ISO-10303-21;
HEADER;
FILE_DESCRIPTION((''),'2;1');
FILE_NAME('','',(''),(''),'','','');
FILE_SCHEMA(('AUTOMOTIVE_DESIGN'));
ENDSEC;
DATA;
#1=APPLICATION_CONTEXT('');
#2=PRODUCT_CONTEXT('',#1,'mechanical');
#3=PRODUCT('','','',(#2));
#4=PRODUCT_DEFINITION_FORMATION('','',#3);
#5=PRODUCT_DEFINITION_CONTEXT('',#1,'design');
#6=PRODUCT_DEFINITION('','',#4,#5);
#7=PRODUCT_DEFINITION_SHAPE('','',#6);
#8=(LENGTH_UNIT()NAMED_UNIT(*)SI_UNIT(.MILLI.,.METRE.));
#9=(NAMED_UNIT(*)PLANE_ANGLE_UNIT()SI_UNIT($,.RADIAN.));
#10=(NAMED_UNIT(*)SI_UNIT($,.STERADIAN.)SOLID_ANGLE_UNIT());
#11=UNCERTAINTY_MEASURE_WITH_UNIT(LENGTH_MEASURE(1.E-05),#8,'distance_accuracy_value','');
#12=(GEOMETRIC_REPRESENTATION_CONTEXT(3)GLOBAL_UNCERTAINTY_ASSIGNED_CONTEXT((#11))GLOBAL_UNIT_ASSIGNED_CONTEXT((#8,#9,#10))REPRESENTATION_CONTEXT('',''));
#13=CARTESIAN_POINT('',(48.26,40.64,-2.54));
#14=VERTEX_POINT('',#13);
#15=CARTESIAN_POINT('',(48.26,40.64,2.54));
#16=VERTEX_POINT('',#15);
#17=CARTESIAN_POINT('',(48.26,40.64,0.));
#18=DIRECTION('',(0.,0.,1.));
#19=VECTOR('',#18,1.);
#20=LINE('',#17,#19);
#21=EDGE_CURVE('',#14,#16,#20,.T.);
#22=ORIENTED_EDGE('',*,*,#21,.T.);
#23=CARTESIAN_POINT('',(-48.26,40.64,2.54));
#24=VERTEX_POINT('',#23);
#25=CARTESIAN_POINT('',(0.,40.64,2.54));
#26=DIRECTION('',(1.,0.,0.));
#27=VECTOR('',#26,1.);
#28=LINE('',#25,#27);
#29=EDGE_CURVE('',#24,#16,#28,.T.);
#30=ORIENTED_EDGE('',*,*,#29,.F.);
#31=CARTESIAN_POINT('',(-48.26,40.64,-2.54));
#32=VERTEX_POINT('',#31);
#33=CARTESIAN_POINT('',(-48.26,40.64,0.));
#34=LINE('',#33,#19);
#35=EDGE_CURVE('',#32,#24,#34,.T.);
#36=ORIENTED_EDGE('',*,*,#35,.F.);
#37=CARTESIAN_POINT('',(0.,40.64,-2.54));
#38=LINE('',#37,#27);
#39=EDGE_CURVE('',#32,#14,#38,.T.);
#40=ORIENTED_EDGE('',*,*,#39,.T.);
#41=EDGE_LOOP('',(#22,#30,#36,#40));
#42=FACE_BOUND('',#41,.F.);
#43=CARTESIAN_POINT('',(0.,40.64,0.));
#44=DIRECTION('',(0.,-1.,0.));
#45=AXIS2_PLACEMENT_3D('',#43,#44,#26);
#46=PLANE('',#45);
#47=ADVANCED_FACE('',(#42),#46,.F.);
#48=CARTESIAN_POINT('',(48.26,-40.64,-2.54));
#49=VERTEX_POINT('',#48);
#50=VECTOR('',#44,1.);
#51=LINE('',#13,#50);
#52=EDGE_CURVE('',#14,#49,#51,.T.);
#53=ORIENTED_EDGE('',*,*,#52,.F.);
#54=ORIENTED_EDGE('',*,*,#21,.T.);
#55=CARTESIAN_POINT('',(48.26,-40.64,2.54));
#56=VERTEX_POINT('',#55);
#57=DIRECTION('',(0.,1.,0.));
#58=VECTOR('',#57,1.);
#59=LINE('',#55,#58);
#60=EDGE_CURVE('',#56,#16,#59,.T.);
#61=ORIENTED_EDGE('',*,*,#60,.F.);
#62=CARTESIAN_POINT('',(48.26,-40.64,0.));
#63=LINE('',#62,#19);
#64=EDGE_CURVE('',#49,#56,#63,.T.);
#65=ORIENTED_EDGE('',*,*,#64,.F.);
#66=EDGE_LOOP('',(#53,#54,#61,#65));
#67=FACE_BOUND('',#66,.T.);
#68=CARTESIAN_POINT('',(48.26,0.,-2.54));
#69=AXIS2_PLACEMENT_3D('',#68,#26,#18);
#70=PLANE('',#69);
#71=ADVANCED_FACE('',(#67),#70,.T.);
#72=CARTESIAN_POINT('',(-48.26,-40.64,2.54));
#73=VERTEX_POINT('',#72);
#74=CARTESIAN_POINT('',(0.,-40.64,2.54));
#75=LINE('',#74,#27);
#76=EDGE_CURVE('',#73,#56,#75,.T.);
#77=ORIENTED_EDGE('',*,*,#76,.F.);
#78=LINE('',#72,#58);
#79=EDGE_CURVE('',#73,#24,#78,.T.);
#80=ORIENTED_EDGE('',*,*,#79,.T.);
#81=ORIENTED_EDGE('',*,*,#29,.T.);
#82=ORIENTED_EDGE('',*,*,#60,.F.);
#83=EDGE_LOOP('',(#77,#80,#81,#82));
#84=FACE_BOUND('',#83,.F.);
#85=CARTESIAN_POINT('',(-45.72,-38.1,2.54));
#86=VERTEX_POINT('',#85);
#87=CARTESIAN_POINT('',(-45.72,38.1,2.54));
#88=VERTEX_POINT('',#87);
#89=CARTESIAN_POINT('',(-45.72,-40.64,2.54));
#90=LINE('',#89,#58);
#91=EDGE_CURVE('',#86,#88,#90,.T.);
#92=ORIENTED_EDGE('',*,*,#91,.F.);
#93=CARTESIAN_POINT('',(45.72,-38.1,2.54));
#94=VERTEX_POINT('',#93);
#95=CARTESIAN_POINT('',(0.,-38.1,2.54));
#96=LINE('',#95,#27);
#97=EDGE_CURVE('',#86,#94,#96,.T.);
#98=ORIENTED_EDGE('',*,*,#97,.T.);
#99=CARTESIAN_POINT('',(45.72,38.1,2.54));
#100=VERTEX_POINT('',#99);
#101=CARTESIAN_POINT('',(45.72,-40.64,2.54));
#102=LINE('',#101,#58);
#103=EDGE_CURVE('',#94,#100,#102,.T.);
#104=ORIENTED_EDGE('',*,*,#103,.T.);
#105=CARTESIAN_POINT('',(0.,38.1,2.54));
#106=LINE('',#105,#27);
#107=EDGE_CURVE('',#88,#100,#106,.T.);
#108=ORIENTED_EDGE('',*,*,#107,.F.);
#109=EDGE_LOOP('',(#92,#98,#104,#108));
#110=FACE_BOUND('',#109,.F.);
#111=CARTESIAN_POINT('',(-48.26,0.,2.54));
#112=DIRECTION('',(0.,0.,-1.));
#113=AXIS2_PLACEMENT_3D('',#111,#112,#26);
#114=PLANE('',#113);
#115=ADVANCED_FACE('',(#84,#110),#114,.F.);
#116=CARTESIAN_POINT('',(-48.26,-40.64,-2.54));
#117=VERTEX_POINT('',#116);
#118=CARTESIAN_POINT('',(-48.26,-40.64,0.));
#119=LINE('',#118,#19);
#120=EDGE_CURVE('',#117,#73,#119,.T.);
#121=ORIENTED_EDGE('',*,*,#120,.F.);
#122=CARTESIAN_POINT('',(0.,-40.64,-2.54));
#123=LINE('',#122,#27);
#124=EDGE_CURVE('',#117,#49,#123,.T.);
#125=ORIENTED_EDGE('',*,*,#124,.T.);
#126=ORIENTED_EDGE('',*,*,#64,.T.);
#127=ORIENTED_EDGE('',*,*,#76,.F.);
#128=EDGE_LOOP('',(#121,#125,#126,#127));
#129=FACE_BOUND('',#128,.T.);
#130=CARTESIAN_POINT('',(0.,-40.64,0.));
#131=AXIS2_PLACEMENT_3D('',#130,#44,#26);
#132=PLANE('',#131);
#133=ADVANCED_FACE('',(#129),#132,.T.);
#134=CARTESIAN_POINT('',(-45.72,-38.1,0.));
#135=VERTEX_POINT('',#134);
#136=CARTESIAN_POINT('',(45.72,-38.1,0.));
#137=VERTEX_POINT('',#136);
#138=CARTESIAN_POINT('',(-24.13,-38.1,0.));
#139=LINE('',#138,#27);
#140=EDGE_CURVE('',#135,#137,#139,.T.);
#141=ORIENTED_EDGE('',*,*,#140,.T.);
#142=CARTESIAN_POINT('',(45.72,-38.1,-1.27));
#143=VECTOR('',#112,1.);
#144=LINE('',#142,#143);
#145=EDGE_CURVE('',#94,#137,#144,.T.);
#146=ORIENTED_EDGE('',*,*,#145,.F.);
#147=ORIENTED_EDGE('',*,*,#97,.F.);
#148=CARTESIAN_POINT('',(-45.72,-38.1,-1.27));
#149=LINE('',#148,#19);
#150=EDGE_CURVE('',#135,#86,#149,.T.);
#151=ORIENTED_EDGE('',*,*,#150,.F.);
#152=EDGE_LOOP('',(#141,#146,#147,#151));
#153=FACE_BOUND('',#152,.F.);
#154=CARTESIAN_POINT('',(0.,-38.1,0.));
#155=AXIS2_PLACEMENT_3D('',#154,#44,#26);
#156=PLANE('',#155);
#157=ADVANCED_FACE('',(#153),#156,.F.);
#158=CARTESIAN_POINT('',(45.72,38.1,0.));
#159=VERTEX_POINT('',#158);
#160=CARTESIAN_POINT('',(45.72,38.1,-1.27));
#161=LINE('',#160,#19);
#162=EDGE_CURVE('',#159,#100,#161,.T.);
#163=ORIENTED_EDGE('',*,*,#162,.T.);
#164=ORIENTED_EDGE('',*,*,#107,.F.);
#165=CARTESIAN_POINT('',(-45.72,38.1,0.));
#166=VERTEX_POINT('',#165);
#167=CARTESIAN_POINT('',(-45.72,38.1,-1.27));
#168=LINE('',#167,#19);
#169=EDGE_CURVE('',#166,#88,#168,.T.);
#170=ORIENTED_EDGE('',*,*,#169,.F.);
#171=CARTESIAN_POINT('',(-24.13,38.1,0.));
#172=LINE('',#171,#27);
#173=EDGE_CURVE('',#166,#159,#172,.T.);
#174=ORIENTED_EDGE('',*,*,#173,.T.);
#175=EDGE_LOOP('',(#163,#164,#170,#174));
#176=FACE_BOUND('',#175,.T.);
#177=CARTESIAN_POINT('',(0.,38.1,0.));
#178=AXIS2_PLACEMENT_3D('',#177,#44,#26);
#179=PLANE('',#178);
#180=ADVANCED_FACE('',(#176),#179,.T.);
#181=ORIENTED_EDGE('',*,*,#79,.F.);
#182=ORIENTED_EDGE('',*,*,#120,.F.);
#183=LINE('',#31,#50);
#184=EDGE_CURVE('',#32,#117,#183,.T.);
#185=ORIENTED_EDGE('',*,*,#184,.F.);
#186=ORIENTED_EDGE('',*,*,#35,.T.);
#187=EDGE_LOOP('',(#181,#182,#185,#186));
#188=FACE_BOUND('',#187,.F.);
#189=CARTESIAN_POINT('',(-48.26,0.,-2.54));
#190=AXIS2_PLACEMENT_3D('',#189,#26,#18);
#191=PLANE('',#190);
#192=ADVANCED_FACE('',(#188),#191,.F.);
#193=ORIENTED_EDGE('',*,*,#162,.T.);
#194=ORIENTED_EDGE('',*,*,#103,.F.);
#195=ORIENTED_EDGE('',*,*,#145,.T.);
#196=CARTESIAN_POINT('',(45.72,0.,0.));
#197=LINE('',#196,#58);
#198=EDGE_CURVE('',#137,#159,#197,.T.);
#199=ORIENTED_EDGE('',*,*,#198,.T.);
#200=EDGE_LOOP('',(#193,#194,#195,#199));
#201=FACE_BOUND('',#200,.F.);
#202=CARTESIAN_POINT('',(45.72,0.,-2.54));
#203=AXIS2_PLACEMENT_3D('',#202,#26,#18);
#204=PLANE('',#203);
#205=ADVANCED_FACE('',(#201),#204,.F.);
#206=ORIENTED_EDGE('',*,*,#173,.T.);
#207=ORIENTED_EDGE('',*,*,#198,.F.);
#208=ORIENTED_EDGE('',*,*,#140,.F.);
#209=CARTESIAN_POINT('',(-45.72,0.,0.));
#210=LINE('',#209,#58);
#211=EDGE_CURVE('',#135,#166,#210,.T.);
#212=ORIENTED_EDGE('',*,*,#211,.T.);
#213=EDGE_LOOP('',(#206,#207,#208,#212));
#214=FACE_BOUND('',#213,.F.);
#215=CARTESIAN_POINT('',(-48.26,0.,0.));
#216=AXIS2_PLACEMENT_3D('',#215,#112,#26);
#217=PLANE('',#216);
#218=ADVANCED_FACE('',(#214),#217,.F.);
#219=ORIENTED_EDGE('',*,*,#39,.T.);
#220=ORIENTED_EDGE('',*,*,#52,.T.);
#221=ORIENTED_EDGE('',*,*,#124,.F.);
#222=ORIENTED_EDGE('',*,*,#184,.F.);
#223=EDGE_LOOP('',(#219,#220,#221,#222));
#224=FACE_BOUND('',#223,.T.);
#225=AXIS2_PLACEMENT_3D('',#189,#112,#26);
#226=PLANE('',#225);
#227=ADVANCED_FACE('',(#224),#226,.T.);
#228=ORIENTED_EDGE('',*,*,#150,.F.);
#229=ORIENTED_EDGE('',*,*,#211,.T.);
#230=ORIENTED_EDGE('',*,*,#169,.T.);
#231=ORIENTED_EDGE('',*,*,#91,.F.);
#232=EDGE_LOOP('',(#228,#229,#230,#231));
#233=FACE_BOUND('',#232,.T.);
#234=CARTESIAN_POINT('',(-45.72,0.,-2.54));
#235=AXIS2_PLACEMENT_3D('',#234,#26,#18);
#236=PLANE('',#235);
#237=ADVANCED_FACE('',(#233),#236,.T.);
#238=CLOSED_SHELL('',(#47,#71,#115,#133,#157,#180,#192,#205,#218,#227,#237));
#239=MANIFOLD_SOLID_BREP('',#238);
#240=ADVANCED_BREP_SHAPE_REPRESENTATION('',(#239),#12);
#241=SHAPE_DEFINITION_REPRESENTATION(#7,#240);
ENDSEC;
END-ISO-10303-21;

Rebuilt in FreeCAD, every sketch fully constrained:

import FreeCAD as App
import Part
import Sketcher
Q = App.Units.Quantity


def faces_at(feature, points):
    """Names of the faces that lie closest to the given points."""
    faces = feature.Shape.Faces
    near = lambda p: min(range(len(faces)), key=lambda i: faces[i].distToShape(Part.Vertex(*p))[0])
    return sorted({f"Face{near(p) + 1}" for p in points})


def add_polygon(sketch, points):
    """Adds a closed chain of lines whose ends are joined by coincident constraints."""
    first, n = sketch.GeometryCount, len(points)
    for a, b in zip(points, points[1:] + points[:1]):
        sketch.addGeometry(Part.LineSegment(App.Vector(*a, 0), App.Vector(*b, 0)), False)
    for i in range(n):
        sketch.addConstraint(Sketcher.Constraint("Coincident", first + i, 2, first + (i + 1) % n, 1))

doc = App.newDocument("Part")
body = doc.addObject("PartDesign::Body", "Body")

# Sketch on XZ plane
sketch1 = doc.addObject("Sketcher::SketchObject", "Sketch")
body.addObject(sketch1)
sketch1.AttachmentSupport = (doc.XZ_Plane, [""])
sketch1.MapMode = "FlatFace"
add_polygon(sketch1, [(-48, 3), (-48, -3), (48, -3), (48, 3)])  # lines 0-3
sketch1.addConstraint(Sketcher.Constraint("Vertical", 0))
sketch1.addConstraint(Sketcher.Constraint("Horizontal", 1))
sketch1.addConstraint(Sketcher.Constraint("Vertical", 2))
sketch1.addConstraint(Sketcher.Constraint("Horizontal", 3))
sketch1.addConstraint(Sketcher.Constraint("Symmetric", 0, 2, 2, 2, -1, 1))
sketch1.addConstraint(Sketcher.Constraint("DistanceX", 1, 1, 1, 2, Q("3.8 in")))
sketch1.addConstraint(Sketcher.Constraint("DistanceY", 0, 2, 0, 1, Q("0.2 in")))
pad1 = doc.addObject("PartDesign::Pad", "Pad")
body.addObject(pad1)
pad1.Profile = sketch1
pad1.Length = Q("3.2 in")
pad1.Midplane = True
doc.recompute()

thickness = doc.addObject("PartDesign::Thickness", "Thickness")
body.addObject(thickness)
thickness.Base = (pad1, faces_at(pad1, [(0, 0, 2.54)]))
thickness.Value = Q("0.1 in")
thickness.Reversed = True
thickness.Join = "Arc"

doc.recompute()
